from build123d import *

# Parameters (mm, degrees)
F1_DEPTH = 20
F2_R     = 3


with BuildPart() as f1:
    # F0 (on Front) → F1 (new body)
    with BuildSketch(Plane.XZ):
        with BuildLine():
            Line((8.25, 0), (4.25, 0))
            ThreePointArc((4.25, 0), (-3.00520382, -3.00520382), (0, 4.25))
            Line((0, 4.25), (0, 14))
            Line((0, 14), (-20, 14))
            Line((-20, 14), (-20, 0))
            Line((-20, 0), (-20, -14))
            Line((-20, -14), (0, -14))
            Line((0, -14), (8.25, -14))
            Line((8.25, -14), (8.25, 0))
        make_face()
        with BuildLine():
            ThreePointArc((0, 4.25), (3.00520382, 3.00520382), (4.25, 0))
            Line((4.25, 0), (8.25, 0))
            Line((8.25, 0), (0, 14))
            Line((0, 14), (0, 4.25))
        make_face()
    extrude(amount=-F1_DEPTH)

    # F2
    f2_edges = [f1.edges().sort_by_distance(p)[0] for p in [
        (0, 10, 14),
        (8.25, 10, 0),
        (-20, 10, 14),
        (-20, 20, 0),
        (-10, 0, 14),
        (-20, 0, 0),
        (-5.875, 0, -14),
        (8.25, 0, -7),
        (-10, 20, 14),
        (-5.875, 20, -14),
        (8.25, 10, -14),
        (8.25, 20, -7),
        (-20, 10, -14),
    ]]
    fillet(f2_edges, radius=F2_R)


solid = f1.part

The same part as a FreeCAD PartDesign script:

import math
import FreeCAD as App
import Part
import Sketcher
from FreeCAD import Vector


def edges_at(feature, points):
    """Names of the edges that pass closest to the given points."""
    edges = feature.Shape.Edges
    near = lambda p: min(range(len(edges)), key=lambda i: edges[i].distToShape(Part.Vertex(*p))[0])
    return sorted({f"Edge{near(p) + 1}" for p in points})


def add_polygon(sketch, points):
    """Adds a closed chain of lines whose ends are joined by coincident constraints."""
    first, n = sketch.GeometryCount, len(points)
    for a, b in zip(points, points[1:] + points[:1]):
        sketch.addGeometry(Part.LineSegment(App.Vector(*a, 0), App.Vector(*b, 0)), False)
    for i in range(n):
        sketch.addConstraint(Sketcher.Constraint("Coincident", first + i, 2, first + (i + 1) % n, 1))

doc = App.newDocument("Part")
params = doc.addObject("Spreadsheet::Sheet", "Params")
for row, (alias, value) in enumerate([
    ("sketch1_width", "20 mm"),
    ("sketch1_height", "28 mm"),
    ("sketch1_height2", "14 mm"),
    ("sketch1_radius", "4.25 mm"),
    ("pad1_length", "20 mm"),
    ("fillet_radius", "3 mm"),
], start=1):
    params.set(f"A{row}", alias)
    params.set(f"B{row}", "=" + value)
    params.setAlias(f"B{row}", alias)

body = doc.addObject("PartDesign::Body", "Body")

sketch1 = body.newObject("Sketcher::SketchObject", "Sketch")
sketch1.AttachmentSupport = (doc.getObject("XZ_Plane"), [""])
sketch1.MapMode = "FlatFace"
add_polygon(sketch1, [(0, 14), (-20, 14), (-20, -14), (8.25, -14), (8.25, 0)])
sketch1.addGeometry(Part.ArcOfCircle(Part.Circle(Vector(0, 0, 0), Vector(0, 0, 1), 4.25), math.radians(90), math.radians(360)), False)
sketch1.addGeometry(Part.ArcOfCircle(Part.Circle(Vector(0, 0, 0), Vector(0, 0, 1), 4.25), math.radians(0), math.radians(90)), False)
sketch1.addConstraint(Sketcher.Constraint("Tangent", 5, 1, 6, 2))
sketch1.addConstraint(Sketcher.Constraint("Coincident", 6, 1, 5, 2))
sketch1.addConstraint(Sketcher.Constraint("Horizontal", 0))
sketch1.addConstraint(Sketcher.Constraint("Vertical", 1))
sketch1.addConstraint(Sketcher.Constraint("Horizontal", 2))
sketch1.addConstraint(Sketcher.Constraint("Vertical", 3))
sketch1.addConstraint(Sketcher.Constraint("Coincident", 5, 3, -1, 1))
sketch1.addConstraint(Sketcher.Constraint("PointOnObject", 3, 2, -1))
sketch1.addConstraint(Sketcher.Constraint("PointOnObject", 4, 2, -2))
sketch1.addConstraint(Sketcher.Constraint("PointOnObject", 5, 1, -2))
sketch1.addConstraint(Sketcher.Constraint("PointOnObject", 6, 1, -1))
sketch1.addConstraint(Sketcher.Constraint("DistanceX", 0, 2, 0, 1, 20.0))
sketch1.addConstraint(Sketcher.Constraint("DistanceY", 1, 2, 1, 1, 28.0))
sketch1.addConstraint(Sketcher.Constraint("DistanceY", 3, 1, 3, 2, 14.0))
sketch1.addConstraint(Sketcher.Constraint("Radius", 5, 4.25))
sketch1.addConstraint(Sketcher.Constraint("DistanceX", 6, 1, 3, 2, 4.0))
sketch1.setExpression("Constraints[16]", "Params.sketch1_width")
sketch1.setExpression("Constraints[17]", "Params.sketch1_height")
sketch1.setExpression("Constraints[18]", "Params.sketch1_height2")
sketch1.setExpression("Constraints[19]", "Params.sketch1_radius")
pad1 = body.newObject("PartDesign::Pad", "Pad")
pad1.Profile = sketch1
pad1.setExpression("Length", "Params.pad1_length")
pad1.Reversed = True
doc.recompute()

fillet = body.newObject("PartDesign::Fillet", "Fillet")
fillet.Base = (pad1, edges_at(pad1, [
    (0, 10, 14),
    (8.25, 10, 0),
    (-20, 10, 14),
    (-20, 20, 0),
    (-10, 0, 14),
    (-20, 0, 0),
    (-5.875, 0, -14),
    (8.25, 0, -7),
    (-10, 20, 14),
    (-5.875, 20, -14),
    (8.25, 10, -14),
    (8.25, 20, -7),
    (-20, 10, -14),
]))
fillet.setExpression("Radius", "Params.fillet_radius")

doc.recompute()
